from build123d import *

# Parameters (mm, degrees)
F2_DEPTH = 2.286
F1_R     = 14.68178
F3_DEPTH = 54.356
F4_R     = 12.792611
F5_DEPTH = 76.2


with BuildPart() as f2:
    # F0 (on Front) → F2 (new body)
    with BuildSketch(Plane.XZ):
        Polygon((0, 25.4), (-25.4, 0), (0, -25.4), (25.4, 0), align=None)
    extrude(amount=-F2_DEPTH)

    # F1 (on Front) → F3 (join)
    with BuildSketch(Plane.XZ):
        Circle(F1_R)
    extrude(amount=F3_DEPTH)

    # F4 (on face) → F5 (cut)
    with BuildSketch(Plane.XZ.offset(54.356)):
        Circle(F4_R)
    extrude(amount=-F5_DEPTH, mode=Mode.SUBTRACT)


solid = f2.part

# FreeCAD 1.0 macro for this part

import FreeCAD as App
import Part
import Sketcher
from FreeCAD import Vector
Q = App.Units.Quantity

doc = App.newDocument("Part")
body = doc.addObject("PartDesign::Body", "Body")

sketch1 = body.newObject("Sketcher::SketchObject", "Sketch")
sketch1.AttachmentSupport = (doc.getObject("XZ_Plane"), [""])
sketch1.MapMode = "FlatFace"
sketch1.addGeometry(Part.LineSegment(Vector(0, 25, 0), Vector(-25, 0, 0)), False)
sketch1.addGeometry(Part.LineSegment(Vector(-25, 0, 0), Vector(0, -25, 0)), False)
sketch1.addGeometry(Part.LineSegment(Vector(0, -25, 0), Vector(25, 0, 0)), False)
sketch1.addGeometry(Part.LineSegment(Vector(25, 0, 0), Vector(0, 25, 0)), False)
sketch1.addConstraint(Sketcher.Constraint("Coincident", 0, 2, 1, 1))
sketch1.addConstraint(Sketcher.Constraint("Coincident", 1, 2, 2, 1))
sketch1.addConstraint(Sketcher.Constraint("Coincident", 2, 2, 3, 1))
sketch1.addConstraint(Sketcher.Constraint("Coincident", 3, 2, 0, 1))
sketch1.addConstraint(Sketcher.Constraint("Symmetric", 0, 2, 2, 2, -1, 1))
sketch1.addConstraint(Sketcher.Constraint("Symmetric", 1, 2, 3, 2, -1, 1))
sketch1.addConstraint(Sketcher.Constraint("PointOnObject", 0, 2, -1))
sketch1.addConstraint(Sketcher.Constraint("PointOnObject", 1, 2, -2))
sketch1.addConstraint(Sketcher.Constraint("Perpendicular", 0, 1))
sketch1.addConstraint(Sketcher.Constraint("DistanceX", 0, 2, -1, 1, Q("1 in")))
pad1 = body.newObject("PartDesign::Pad", "Pad")
pad1.Profile = sketch1
pad1.Length = Q("0.09 in")
pad1.Reversed = True

sketch2 = body.newObject("Sketcher::SketchObject", "Sketch001")
sketch2.AttachmentSupport = (doc.getObject("XZ_Plane"), [""])
sketch2.MapMode = "FlatFace"
sketch2.addGeometry(Part.Circle(Vector(0, 0, 0), Vector(0, 0, 1), 15), False)
sketch2.addConstraint(Sketcher.Constraint("Coincident", 0, 3, -1, 1))
sketch2.addConstraint(Sketcher.Constraint("Diameter", 0, 29.36356))
pad2 = body.newObject("PartDesign::Pad", "Pad001")
pad2.Profile = sketch2
pad2.Length = Q("2.14 in")

sketch3 = body.newObject("Sketcher::SketchObject", "Sketch002")
sketch3.AttachmentSupport = (doc.getObject("XZ_Plane"), [""])
sketch3.MapMode = "FlatFace"
sketch3.AttachmentOffset = App.Placement(Vector(0, 0, 2.14 * 25.4), App.Rotation())
sketch3.addGeometry(Part.Circle(Vector(0, 0, 0), Vector(0, 0, 1), 13), False)
sketch3.addConstraint(Sketcher.Constraint("Coincident", 0, 3, -1, 1))
sketch3.addConstraint(Sketcher.Constraint("Diameter", 0, 25.585222))
pocket1 = body.newObject("PartDesign::Pocket", "Pocket")
pocket1.Profile = sketch3
pocket1.Length = Q("3 in")

doc.recompute()
